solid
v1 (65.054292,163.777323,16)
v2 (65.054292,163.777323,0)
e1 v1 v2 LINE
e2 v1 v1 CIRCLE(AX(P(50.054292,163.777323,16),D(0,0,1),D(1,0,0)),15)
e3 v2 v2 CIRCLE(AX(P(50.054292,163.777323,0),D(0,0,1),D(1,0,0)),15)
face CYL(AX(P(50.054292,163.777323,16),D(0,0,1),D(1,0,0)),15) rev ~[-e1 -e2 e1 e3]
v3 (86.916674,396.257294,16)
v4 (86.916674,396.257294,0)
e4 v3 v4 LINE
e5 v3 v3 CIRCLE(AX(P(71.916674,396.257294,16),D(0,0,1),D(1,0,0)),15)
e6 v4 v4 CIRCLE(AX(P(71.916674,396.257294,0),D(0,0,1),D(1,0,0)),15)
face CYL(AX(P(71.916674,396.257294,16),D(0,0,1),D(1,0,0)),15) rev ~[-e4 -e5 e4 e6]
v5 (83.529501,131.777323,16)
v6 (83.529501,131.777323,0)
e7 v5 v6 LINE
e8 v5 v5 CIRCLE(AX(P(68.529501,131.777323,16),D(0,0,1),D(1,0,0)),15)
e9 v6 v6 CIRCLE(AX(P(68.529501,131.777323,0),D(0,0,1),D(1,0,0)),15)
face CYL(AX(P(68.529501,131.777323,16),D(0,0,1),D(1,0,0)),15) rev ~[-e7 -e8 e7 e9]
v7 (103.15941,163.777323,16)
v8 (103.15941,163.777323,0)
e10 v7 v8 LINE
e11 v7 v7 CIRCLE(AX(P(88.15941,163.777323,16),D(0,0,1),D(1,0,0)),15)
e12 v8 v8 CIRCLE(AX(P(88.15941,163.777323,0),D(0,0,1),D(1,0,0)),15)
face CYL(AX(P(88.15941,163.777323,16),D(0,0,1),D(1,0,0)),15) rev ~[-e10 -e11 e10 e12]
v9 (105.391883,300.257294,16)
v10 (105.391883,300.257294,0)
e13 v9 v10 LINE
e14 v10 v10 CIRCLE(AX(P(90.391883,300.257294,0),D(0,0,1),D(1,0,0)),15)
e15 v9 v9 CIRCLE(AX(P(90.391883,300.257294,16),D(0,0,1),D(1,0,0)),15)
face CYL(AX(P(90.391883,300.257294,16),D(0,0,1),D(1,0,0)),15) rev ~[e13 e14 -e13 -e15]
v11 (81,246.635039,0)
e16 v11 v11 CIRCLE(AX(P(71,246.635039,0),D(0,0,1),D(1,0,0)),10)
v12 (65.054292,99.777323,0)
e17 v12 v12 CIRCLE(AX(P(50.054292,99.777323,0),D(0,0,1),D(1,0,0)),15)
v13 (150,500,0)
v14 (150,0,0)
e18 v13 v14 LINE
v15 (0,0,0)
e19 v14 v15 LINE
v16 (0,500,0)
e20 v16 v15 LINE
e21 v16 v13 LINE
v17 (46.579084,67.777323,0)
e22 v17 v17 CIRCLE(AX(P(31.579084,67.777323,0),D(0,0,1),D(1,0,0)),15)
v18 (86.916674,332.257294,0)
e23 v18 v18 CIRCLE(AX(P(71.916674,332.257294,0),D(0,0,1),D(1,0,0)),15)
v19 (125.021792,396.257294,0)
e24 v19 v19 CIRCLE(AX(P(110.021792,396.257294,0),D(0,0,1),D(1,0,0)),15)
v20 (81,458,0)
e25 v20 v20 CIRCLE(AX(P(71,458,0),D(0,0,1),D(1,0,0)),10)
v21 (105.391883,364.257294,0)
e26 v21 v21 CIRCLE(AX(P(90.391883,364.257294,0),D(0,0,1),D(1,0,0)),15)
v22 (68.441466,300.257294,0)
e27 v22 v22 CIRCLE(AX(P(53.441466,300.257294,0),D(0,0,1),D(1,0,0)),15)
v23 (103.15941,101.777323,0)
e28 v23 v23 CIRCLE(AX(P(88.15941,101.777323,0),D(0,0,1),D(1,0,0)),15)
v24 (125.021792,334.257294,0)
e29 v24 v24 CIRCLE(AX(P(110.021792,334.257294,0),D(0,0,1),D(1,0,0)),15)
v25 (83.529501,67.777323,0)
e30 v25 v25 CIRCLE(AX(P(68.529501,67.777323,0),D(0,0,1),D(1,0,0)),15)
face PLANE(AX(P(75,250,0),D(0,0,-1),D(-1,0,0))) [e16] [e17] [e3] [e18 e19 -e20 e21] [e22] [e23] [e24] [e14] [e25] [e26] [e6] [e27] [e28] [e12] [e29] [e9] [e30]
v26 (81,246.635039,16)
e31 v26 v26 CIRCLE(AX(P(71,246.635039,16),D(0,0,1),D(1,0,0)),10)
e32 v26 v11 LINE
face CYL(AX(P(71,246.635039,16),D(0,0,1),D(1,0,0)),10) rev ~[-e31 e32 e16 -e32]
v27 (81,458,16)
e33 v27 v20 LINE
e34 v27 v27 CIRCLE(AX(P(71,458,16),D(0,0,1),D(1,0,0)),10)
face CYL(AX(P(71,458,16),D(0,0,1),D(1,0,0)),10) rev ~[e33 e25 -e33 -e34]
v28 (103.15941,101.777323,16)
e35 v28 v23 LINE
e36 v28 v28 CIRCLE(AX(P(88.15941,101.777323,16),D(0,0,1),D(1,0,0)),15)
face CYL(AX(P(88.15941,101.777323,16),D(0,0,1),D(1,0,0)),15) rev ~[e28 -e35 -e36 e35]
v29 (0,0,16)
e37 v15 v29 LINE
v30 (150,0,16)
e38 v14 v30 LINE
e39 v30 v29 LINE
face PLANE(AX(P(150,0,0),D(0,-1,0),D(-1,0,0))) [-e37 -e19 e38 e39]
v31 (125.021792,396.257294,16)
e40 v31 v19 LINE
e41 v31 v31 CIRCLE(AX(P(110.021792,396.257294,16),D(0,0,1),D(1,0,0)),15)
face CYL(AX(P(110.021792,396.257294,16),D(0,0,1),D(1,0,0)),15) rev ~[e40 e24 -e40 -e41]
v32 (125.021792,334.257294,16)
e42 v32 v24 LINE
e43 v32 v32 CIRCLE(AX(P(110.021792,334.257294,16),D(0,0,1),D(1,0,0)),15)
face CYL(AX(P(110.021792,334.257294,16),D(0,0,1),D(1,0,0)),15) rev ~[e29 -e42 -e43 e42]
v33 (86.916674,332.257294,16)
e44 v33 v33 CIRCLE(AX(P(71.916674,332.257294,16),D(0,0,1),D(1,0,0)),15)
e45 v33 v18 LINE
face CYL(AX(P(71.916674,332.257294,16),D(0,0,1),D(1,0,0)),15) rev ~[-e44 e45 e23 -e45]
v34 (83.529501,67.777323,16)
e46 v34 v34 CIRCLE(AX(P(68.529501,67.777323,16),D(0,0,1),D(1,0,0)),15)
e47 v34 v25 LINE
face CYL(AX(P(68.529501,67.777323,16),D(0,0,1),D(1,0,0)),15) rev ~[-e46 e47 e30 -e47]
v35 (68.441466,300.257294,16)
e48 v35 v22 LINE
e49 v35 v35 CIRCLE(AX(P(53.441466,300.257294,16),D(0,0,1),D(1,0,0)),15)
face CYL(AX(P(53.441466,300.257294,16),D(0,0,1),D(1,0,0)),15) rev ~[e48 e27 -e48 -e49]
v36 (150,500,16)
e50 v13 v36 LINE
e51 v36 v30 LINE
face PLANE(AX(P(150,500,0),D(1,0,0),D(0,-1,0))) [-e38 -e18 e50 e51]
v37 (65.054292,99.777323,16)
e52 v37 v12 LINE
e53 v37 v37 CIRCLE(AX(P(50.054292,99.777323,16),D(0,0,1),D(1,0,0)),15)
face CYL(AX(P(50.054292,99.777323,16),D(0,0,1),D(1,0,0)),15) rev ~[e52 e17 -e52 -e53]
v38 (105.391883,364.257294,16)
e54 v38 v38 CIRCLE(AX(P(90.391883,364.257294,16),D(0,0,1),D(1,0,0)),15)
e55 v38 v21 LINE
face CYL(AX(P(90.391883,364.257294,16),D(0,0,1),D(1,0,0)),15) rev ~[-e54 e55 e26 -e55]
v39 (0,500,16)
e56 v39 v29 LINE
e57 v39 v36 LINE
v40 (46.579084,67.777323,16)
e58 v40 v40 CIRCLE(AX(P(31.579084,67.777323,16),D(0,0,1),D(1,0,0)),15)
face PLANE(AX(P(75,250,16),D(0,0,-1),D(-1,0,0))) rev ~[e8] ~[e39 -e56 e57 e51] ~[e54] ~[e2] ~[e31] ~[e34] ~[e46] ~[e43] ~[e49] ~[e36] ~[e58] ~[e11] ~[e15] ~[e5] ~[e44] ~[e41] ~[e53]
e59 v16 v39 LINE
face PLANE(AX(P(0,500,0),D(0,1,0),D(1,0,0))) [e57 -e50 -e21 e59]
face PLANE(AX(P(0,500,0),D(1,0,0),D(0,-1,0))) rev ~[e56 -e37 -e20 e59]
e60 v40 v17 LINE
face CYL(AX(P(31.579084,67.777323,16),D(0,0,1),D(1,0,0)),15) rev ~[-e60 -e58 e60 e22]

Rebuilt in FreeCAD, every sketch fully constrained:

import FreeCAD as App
import Part
import Sketcher
from FreeCAD import Vector

doc = App.newDocument("Part")
params = doc.addObject("Spreadsheet::Sheet", "Params")
for row, (alias, value) in enumerate([
    ("sketch1_width", "150 mm"),
    ("sketch1_height", "500 mm"),
    ("pad1_length", "16 mm"),
    ("sketch2_diameter", "30 mm"),
    ("sketch2_diameter2", "20 mm"),
], start=1):
    params.set(f"A{row}", alias)
    params.set(f"B{row}", "=" + value)
    params.setAlias(f"B{row}", alias)

body = doc.addObject("PartDesign::Body", "Body")

sketch1 = body.newObject("Sketcher::SketchObject", "Sketch")
sketch1.AttachmentSupport = (doc.getObject("XY_Plane"), [""])
sketch1.MapMode = "FlatFace"
sketch1.addGeometry(Part.LineSegment(Vector(150, 500, 0), Vector(0, 500, 0)), False)
sketch1.addGeometry(Part.LineSegment(Vector(0, 500, 0), Vector(0, 0, 0)), False)
sketch1.addGeometry(Part.LineSegment(Vector(0, 0, 0), Vector(150, 0, 0)), False)
sketch1.addGeometry(Part.LineSegment(Vector(150, 0, 0), Vector(150, 500, 0)), False)
sketch1.addConstraint(Sketcher.Constraint("Coincident", 0, 2, 1, 1))
sketch1.addConstraint(Sketcher.Constraint("Coincident", 1, 2, 2, 1))
sketch1.addConstraint(Sketcher.Constraint("Coincident", 2, 2, 3, 1))
sketch1.addConstraint(Sketcher.Constraint("Coincident", 3, 2, 0, 1))
sketch1.addConstraint(Sketcher.Constraint("Horizontal", 0))
sketch1.addConstraint(Sketcher.Constraint("Vertical", 1))
sketch1.addConstraint(Sketcher.Constraint("Horizontal", 2))
sketch1.addConstraint(Sketcher.Constraint("Vertical", 3))
sketch1.addConstraint(Sketcher.Constraint("Coincident", 1, 2, -1, 1))
sketch1.addConstraint(Sketcher.Constraint("DistanceX", 0, 2, 0, 1, 150.0))
sketch1.addConstraint(Sketcher.Constraint("DistanceY", 1, 2, 1, 1, 500.0))
sketch1.setExpression("Constraints[9]", "Params.sketch1_width")
sketch1.setExpression("Constraints[10]", "Params.sketch1_height")
pad1 = body.newObject("PartDesign::Pad", "Pad")
pad1.Profile = sketch1
pad1.setExpression("Length", "Params.pad1_length")

sketch2 = body.newObject("Sketcher::SketchObject", "Sketch001")
sketch2.AttachmentSupport = (doc.getObject("XY_Plane"), [""])
sketch2.MapMode = "FlatFace"
sketch2.AttachmentOffset = App.Placement(Vector(0, 0, 16), App.Rotation())
sketch2.addGeometry(Part.Circle(Vector(32, 68, 0), Vector(0, 0, 1), 15), False)
sketch2.addGeometry(Part.Circle(Vector(50, 100, 0), Vector(0, 0, 1), 15), False)
sketch2.addGeometry(Part.Circle(Vector(69, 132, 0), Vector(0, 0, 1), 15), False)
sketch2.addGeometry(Part.Circle(Vector(50, 164, 0), Vector(0, 0, 1), 15), False)
sketch2.addGeometry(Part.Circle(Vector(71, 247, 0), Vector(0, 0, 1), 10), False)
sketch2.addGeometry(Part.Circle(Vector(69, 68, 0), Vector(0, 0, 1), 15), False)
sketch2.addGeometry(Part.Circle(Vector(88, 102, 0), Vector(0, 0, 1), 15), False)
sketch2.addGeometry(Part.Circle(Vector(88, 164, 0), Vector(0, 0, 1), 15), False)
sketch2.addGeometry(Part.Circle(Vector(53, 300, 0), Vector(0, 0, 1), 15), False)
sketch2.addGeometry(Part.Circle(Vector(72, 332, 0), Vector(0, 0, 1), 15), False)
sketch2.addGeometry(Part.Circle(Vector(90, 364, 0), Vector(0, 0, 1), 15), False)
sketch2.addGeometry(Part.Circle(Vector(72, 396, 0), Vector(0, 0, 1), 15), False)
sketch2.addGeometry(Part.Circle(Vector(71, 458, 0), Vector(0, 0, 1), 10), False)
sketch2.addGeometry(Part.Circle(Vector(90, 300, 0), Vector(0, 0, 1), 15), False)
sketch2.addGeometry(Part.Circle(Vector(110, 334, 0), Vector(0, 0, 1), 15), False)
sketch2.addGeometry(Part.Circle(Vector(110, 396, 0), Vector(0, 0, 1), 15), False)
sketch2.addConstraint(Sketcher.Constraint("Equal", 0, 1))
sketch2.addConstraint(Sketcher.Constraint("Equal", 1, 2))
sketch2.addConstraint(Sketcher.Constraint("Equal", 2, 3))
sketch2.addConstraint(Sketcher.Constraint("Equal", 3, 5))
sketch2.addConstraint(Sketcher.Constraint("Equal", 5, 6))
sketch2.addConstraint(Sketcher.Constraint("Equal", 6, 7))
sketch2.addConstraint(Sketcher.Constraint("Equal", 7, 8))
sketch2.addConstraint(Sketcher.Constraint("Equal", 8, 9))
sketch2.addConstraint(Sketcher.Constraint("Equal", 9, 10))
sketch2.addConstraint(Sketcher.Constraint("Equal", 10, 11))
sketch2.addConstraint(Sketcher.Constraint("Equal", 4, 12))
sketch2.addConstraint(Sketcher.Constraint("Equal", 11, 13))
sketch2.addConstraint(Sketcher.Constraint("Equal", 13, 14))
sketch2.addConstraint(Sketcher.Constraint("Equal", 14, 15))
sketch2.addConstraint(Sketcher.Constraint("Horizontal", 0, 3, 5, 3))
sketch2.addConstraint(Sketcher.Constraint("Horizontal", 3, 3, 7, 3))
sketch2.addConstraint(Sketcher.Constraint("Horizontal", 8, 3, 13, 3))
sketch2.addConstraint(Sketcher.Constraint("Horizontal", 11, 3, 15, 3))
sketch2.addConstraint(Sketcher.Constraint("Vertical", 1, 3, 3, 3))
sketch2.addConstraint(Sketcher.Constraint("Vertical", 2, 3, 5, 3))
sketch2.addConstraint(Sketcher.Constraint("Vertical", 6, 3, 7, 3))
sketch2.addConstraint(Sketcher.Constraint("Vertical", 9, 3, 11, 3))
sketch2.addConstraint(Sketcher.Constraint("Vertical", 4, 3, 12, 3))
sketch2.addConstraint(Sketcher.Constraint("Vertical", 10, 3, 13, 3))
sketch2.addConstraint(Sketcher.Constraint("Vertical", 14, 3, 15, 3))
sketch2.addConstraint(Sketcher.Constraint("Diameter", 0, 30.0))
sketch2.addConstraint(Sketcher.Constraint("Diameter", 4, 20.0))
sketch2.addConstraint(Sketcher.Constraint("DistanceX", -1, 1, 4, 3, 71.0))
sketch2.addConstraint(Sketcher.Constraint("DistanceY", -1, 1, 12, 3, 458.0))
sketch2.addConstraint(Sketcher.Constraint("DistanceY", 0, 3, 1, 3, 32.0))
sketch2.addConstraint(Sketcher.Constraint("DistanceY", 1, 3, 2, 3, 32.0))
sketch2.addConstraint(Sketcher.Constraint("DistanceY", 2, 3, 3, 3, 32.0))
sketch2.addConstraint(Sketcher.Constraint("DistanceY", 6, 3, 2, 3, 30.0))
sketch2.addConstraint(Sketcher.Constraint("DistanceY", 8, 3, 9, 3, 32.0))
sketch2.addConstraint(Sketcher.Constraint("DistanceY", 9, 3, 10, 3, 32.0))
sketch2.addConstraint(Sketcher.Constraint("DistanceY", 10, 3, 11, 3, 32.0))
sketch2.addConstraint(Sketcher.Constraint("DistanceY", 14, 3, 10, 3, 30.0))
sketch2.addConstraint(Sketcher.Constraint("DistanceX", -1, 1, 2, 3, 68.529501))
sketch2.addConstraint(Sketcher.Constraint("DistanceX", -1, 1, 1, 3, 50.054292))
sketch2.addConstraint(Sketcher.Constraint("DistanceY", -1, 1, 4, 3, 246.635039))
sketch2.addConstraint(Sketcher.Constraint("DistanceX", -1, 1, 6, 3, 88.15941))
sketch2.addConstraint(Sketcher.Constraint("DistanceY", 3, 3, 8, 3, 136.479971))
sketch2.addConstraint(Sketcher.Constraint("DistanceX", 8, 3, 9, 3, 18.475208))
sketch2.addConstraint(Sketcher.Constraint("DistanceX", 9, 3, 10, 3, 18.475209))
sketch2.addConstraint(Sketcher.Constraint("DistanceX", 3, 3, 10, 3, 40.337591))
sketch2.addConstraint(Sketcher.Constraint("DistanceX", 10, 3, 14, 3, 19.629909))
sketch2.addConstraint(Sketcher.Constraint("DistanceX", -1, 1, 0, 3, 31.579084))
sketch2.addConstraint(Sketcher.Constraint("DistanceY", -1, 1, 0, 3, 67.777323))
sketch2.setExpression("Constraints[25]", "Params.sketch2_diameter")
sketch2.setExpression("Constraints[26]", "Params.sketch2_diameter2")
pocket1 = body.newObject("PartDesign::Pocket", "Pocket")
pocket1.Profile = sketch2
pocket1.Type = "ThroughAll"

doc.recompute()
